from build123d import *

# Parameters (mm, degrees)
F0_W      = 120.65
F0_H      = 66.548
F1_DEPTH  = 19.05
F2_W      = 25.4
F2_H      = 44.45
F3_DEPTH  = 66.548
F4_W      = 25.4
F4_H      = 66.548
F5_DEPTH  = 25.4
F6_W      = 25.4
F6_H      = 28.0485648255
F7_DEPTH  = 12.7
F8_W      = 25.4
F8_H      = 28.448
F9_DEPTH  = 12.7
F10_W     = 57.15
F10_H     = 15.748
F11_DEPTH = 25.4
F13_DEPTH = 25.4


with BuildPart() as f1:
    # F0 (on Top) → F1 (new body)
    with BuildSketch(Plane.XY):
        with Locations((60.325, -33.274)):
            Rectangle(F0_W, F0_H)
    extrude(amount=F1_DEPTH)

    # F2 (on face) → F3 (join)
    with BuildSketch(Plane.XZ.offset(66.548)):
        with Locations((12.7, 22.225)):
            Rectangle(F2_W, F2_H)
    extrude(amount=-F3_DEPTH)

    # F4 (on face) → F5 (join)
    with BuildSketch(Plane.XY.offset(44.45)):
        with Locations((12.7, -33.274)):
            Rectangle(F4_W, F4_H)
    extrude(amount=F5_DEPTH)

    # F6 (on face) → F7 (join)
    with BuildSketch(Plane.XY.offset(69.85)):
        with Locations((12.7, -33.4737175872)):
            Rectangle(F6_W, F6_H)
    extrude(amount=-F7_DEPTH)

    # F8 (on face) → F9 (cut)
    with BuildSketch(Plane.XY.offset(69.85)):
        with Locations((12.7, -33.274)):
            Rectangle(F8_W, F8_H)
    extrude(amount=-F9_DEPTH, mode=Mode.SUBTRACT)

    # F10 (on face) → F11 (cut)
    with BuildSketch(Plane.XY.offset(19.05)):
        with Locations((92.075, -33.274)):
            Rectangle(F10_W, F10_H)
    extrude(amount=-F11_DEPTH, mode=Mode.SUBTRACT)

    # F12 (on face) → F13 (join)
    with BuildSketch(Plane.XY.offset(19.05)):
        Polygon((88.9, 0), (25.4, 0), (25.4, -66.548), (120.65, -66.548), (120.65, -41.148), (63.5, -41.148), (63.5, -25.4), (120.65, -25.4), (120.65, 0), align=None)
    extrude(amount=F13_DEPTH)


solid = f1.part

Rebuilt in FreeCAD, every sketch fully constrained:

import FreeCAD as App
import Part
import Sketcher
from FreeCAD import Vector
Q = App.Units.Quantity


def add_polygon(sketch, points):
    """Adds a closed chain of lines whose ends are joined by coincident constraints."""
    first, n = sketch.GeometryCount, len(points)
    for a, b in zip(points, points[1:] + points[:1]):
        sketch.addGeometry(Part.LineSegment(App.Vector(*a, 0), App.Vector(*b, 0)), False)
    for i in range(n):
        sketch.addConstraint(Sketcher.Constraint("Coincident", first + i, 2, first + (i + 1) % n, 1))

doc = App.newDocument("Part")
body = doc.addObject("PartDesign::Body", "Body")

# Sketch on XY plane
sketch1 = body.newObject("Sketcher::SketchObject", "Sketch")
sketch1.AttachmentSupport = (doc.getObject("XY_Plane"), [""])
sketch1.MapMode = "FlatFace"
add_polygon(sketch1, [(0, 0), (0, -67), (121, -67), (121, 0)])  # lines 0-3
sketch1.addConstraint(Sketcher.Constraint("Vertical", 0))
sketch1.addConstraint(Sketcher.Constraint("Horizontal", 1))
sketch1.addConstraint(Sketcher.Constraint("Vertical", 2))
sketch1.addConstraint(Sketcher.Constraint("Horizontal", 3))
sketch1.addConstraint(Sketcher.Constraint("Coincident", 3, 2, -1, 1))
sketch1.addConstraint(Sketcher.Constraint("DistanceX", 1, 1, 1, 2, Q("4.75 in")))
sketch1.addConstraint(Sketcher.Constraint("DistanceY", 0, 2, 0, 1, Q("2.62 in")))
pad1 = body.newObject("PartDesign::Pad", "Pad")
pad1.Profile = sketch1
pad1.Length = Q("0.75 in")

# Sketch on XZ plane
sketch2 = body.newObject("Sketcher::SketchObject", "Sketch001")
sketch2.AttachmentSupport = (doc.getObject("XZ_Plane"), [""])
sketch2.MapMode = "FlatFace"
sketch2.AttachmentOffset = App.Placement(Vector(0, 0, 2.62 * 25.4), App.Rotation())
add_polygon(sketch2, [(0, 44), (0, 0), (25, 0), (25, 44)])  # lines 0-3
sketch2.addConstraint(Sketcher.Constraint("Vertical", 0))
sketch2.addConstraint(Sketcher.Constraint("Horizontal", 1))
sketch2.addConstraint(Sketcher.Constraint("Vertical", 2))
sketch2.addConstraint(Sketcher.Constraint("Horizontal", 3))
sketch2.addConstraint(Sketcher.Constraint("Coincident", 0, 2, -1, 1))
sketch2.addConstraint(Sketcher.Constraint("DistanceX", 1, 1, 1, 2, Q("1 in")))
sketch2.addConstraint(Sketcher.Constraint("DistanceY", 0, 2, 0, 1, Q("1.75 in")))
pad2 = body.newObject("PartDesign::Pad", "Pad001")
pad2.Profile = sketch2
pad2.Length = Q("2.62 in")
pad2.Reversed = True

# Sketch on XY plane
sketch3 = body.newObject("Sketcher::SketchObject", "Sketch002")
sketch3.AttachmentSupport = (doc.getObject("XY_Plane"), [""])
sketch3.MapMode = "FlatFace"
sketch3.AttachmentOffset = App.Placement(Vector(0, 0, 1.75 * 25.4), App.Rotation())
add_polygon(sketch3, [(0, 0), (0, -67), (25, -67), (25, 0)])  # lines 0-3
sketch3.addConstraint(Sketcher.Constraint("Vertical", 0))
sketch3.addConstraint(Sketcher.Constraint("Horizontal", 1))
sketch3.addConstraint(Sketcher.Constraint("Vertical", 2))
sketch3.addConstraint(Sketcher.Constraint("Horizontal", 3))
sketch3.addConstraint(Sketcher.Constraint("Coincident", 3, 2, -1, 1))
sketch3.addConstraint(Sketcher.Constraint("DistanceX", 1, 1, 1, 2, Q("1 in")))
sketch3.addConstraint(Sketcher.Constraint("DistanceY", 0, 2, 0, 1, Q("2.62 in")))
pad3 = body.newObject("PartDesign::Pad", "Pad002")
pad3.Profile = sketch3
pad3.Length = Q("1 in")

# Sketch on XY plane
sketch4 = body.newObject("Sketcher::SketchObject", "Sketch003")
sketch4.AttachmentSupport = (doc.getObject("XY_Plane"), [""])
sketch4.MapMode = "FlatFace"
sketch4.AttachmentOffset = App.Placement(Vector(0, 0, 2.75 * 25.4), App.Rotation())
add_polygon(sketch4, [(0, -19), (0, -47), (25, -47), (25, -19)])  # lines 0-3
sketch4.addConstraint(Sketcher.Constraint("Vertical", 0))
sketch4.addConstraint(Sketcher.Constraint("Horizontal", 1))
sketch4.addConstraint(Sketcher.Constraint("Vertical", 2))
sketch4.addConstraint(Sketcher.Constraint("Horizontal", 3))
sketch4.addConstraint(Sketcher.Constraint("PointOnObject", 0, 2, -2))
sketch4.addConstraint(Sketcher.Constraint("DistanceX", 1, 1, 1, 2, Q("1 in")))
sketch4.addConstraint(Sketcher.Constraint("DistanceY", 0, 2, -1, 1, Q("1.87 in")))
sketch4.addConstraint(Sketcher.Constraint("DistanceY", 0, 2, 0, 1, 28.048565))
pad4 = body.newObject("PartDesign::Pad", "Pad003")
pad4.Profile = sketch4
pad4.Length = Q("0.5 in")
pad4.Reversed = True

# Sketch on XY plane
sketch5 = body.newObject("Sketcher::SketchObject", "Sketch004")
sketch5.AttachmentSupport = (doc.getObject("XY_Plane"), [""])
sketch5.MapMode = "FlatFace"
sketch5.AttachmentOffset = App.Placement(Vector(0, 0, 2.75 * 25.4), App.Rotation())
add_polygon(sketch5, [(0, -19), (0, -47), (25, -47), (25, -19)])  # lines 0-3
sketch5.addConstraint(Sketcher.Constraint("Vertical", 0))
sketch5.addConstraint(Sketcher.Constraint("Horizontal", 1))
sketch5.addConstraint(Sketcher.Constraint("Vertical", 2))
sketch5.addConstraint(Sketcher.Constraint("Horizontal", 3))
sketch5.addConstraint(Sketcher.Constraint("PointOnObject", 0, 2, -2))
sketch5.addConstraint(Sketcher.Constraint("DistanceX", 1, 1, 1, 2, Q("1 in")))
sketch5.addConstraint(Sketcher.Constraint("DistanceY", 0, 2, 0, 1, Q("1.12 in")))
sketch5.addConstraint(Sketcher.Constraint("DistanceY", 0, 2, -1, 1, Q("1.87 in")))
pocket1 = body.newObject("PartDesign::Pocket", "Pocket")
pocket1.Profile = sketch5
pocket1.Length = Q("0.5 in")

# Sketch on XY plane
sketch6 = body.newObject("Sketcher::SketchObject", "Sketch005")
sketch6.AttachmentSupport = (doc.getObject("XY_Plane"), [""])
sketch6.MapMode = "FlatFace"
sketch6.AttachmentOffset = App.Placement(Vector(0, 0, 0.75 * 25.4), App.Rotation())
add_polygon(sketch6, [(64, -25), (64, -41), (121, -41), (121, -25)])  # lines 0-3
sketch6.addConstraint(Sketcher.Constraint("Vertical", 0))
sketch6.addConstraint(Sketcher.Constraint("Horizontal", 1))
sketch6.addConstraint(Sketcher.Constraint("Vertical", 2))
sketch6.addConstraint(Sketcher.Constraint("Horizontal", 3))
sketch6.addConstraint(Sketcher.Constraint("DistanceY", 2, 2, -1, 1, Q("1 in")))
sketch6.addConstraint(Sketcher.Constraint("DistanceX", 1, 1, 1, 2, Q("2.25 in")))
sketch6.addConstraint(Sketcher.Constraint("DistanceY", 0, 2, 0, 1, Q("0.62 in")))
sketch6.addConstraint(Sketcher.Constraint("DistanceX", -1, 1, 0, 2, Q("2.5 in")))
pocket2 = body.newObject("PartDesign::Pocket", "Pocket001")
pocket2.Profile = sketch6
pocket2.Length = Q("1 in")

# Sketch on XY plane
sketch7 = body.newObject("Sketcher::SketchObject", "Sketch006")
sketch7.AttachmentSupport = (doc.getObject("XY_Plane"), [""])
sketch7.MapMode = "FlatFace"
sketch7.AttachmentOffset = App.Placement(Vector(0, 0, 0.75 * 25.4), App.Rotation())
add_polygon(sketch7, [(25, 0), (25, -67), (121, -67), (121, -41), (64, -41), (64, -25), (121, -25), (121, 0)])  # lines 0-7
sketch7.addConstraint(Sketcher.Constraint("Vertical", 0))
sketch7.addConstraint(Sketcher.Constraint("Horizontal", 1))
sketch7.addConstraint(Sketcher.Constraint("Vertical", 2))
sketch7.addConstraint(Sketcher.Constraint("Horizontal", 3))
sketch7.addConstraint(Sketcher.Constraint("Vertical", 4))
sketch7.addConstraint(Sketcher.Constraint("Horizontal", 5))
sketch7.addConstraint(Sketcher.Constraint("Vertical", 6))
sketch7.addConstraint(Sketcher.Constraint("Horizontal", 7))
sketch7.addConstraint(Sketcher.Constraint("PointOnObject", 6, 2, -1))
sketch7.addConstraint(Sketcher.Constraint("Vertical", 2, 2, 5, 2))
sketch7.addConstraint(Sketcher.Constraint("Equal", 2, 6))
sketch7.addConstraint(Sketcher.Constraint("DistanceY", 2, 1, 2, 2, Q("1 in")))
sketch7.addConstraint(Sketcher.Constraint("DistanceX", -1, 1, 0, 2, Q("1 in")))
sketch7.addConstraint(Sketcher.Constraint("DistanceX", 1, 1, 1, 2, Q("3.75 in")))
sketch7.addConstraint(Sketcher.Constraint("DistanceX", 3, 2, 3, 1, Q("2.25 in")))
sketch7.addConstraint(Sketcher.Constraint("DistanceY", 0, 2, 0, 1, Q("2.62 in")))
pad5 = body.newObject("PartDesign::Pad", "Pad004")
pad5.Profile = sketch7
pad5.Length = Q("1 in")

doc.recompute()
